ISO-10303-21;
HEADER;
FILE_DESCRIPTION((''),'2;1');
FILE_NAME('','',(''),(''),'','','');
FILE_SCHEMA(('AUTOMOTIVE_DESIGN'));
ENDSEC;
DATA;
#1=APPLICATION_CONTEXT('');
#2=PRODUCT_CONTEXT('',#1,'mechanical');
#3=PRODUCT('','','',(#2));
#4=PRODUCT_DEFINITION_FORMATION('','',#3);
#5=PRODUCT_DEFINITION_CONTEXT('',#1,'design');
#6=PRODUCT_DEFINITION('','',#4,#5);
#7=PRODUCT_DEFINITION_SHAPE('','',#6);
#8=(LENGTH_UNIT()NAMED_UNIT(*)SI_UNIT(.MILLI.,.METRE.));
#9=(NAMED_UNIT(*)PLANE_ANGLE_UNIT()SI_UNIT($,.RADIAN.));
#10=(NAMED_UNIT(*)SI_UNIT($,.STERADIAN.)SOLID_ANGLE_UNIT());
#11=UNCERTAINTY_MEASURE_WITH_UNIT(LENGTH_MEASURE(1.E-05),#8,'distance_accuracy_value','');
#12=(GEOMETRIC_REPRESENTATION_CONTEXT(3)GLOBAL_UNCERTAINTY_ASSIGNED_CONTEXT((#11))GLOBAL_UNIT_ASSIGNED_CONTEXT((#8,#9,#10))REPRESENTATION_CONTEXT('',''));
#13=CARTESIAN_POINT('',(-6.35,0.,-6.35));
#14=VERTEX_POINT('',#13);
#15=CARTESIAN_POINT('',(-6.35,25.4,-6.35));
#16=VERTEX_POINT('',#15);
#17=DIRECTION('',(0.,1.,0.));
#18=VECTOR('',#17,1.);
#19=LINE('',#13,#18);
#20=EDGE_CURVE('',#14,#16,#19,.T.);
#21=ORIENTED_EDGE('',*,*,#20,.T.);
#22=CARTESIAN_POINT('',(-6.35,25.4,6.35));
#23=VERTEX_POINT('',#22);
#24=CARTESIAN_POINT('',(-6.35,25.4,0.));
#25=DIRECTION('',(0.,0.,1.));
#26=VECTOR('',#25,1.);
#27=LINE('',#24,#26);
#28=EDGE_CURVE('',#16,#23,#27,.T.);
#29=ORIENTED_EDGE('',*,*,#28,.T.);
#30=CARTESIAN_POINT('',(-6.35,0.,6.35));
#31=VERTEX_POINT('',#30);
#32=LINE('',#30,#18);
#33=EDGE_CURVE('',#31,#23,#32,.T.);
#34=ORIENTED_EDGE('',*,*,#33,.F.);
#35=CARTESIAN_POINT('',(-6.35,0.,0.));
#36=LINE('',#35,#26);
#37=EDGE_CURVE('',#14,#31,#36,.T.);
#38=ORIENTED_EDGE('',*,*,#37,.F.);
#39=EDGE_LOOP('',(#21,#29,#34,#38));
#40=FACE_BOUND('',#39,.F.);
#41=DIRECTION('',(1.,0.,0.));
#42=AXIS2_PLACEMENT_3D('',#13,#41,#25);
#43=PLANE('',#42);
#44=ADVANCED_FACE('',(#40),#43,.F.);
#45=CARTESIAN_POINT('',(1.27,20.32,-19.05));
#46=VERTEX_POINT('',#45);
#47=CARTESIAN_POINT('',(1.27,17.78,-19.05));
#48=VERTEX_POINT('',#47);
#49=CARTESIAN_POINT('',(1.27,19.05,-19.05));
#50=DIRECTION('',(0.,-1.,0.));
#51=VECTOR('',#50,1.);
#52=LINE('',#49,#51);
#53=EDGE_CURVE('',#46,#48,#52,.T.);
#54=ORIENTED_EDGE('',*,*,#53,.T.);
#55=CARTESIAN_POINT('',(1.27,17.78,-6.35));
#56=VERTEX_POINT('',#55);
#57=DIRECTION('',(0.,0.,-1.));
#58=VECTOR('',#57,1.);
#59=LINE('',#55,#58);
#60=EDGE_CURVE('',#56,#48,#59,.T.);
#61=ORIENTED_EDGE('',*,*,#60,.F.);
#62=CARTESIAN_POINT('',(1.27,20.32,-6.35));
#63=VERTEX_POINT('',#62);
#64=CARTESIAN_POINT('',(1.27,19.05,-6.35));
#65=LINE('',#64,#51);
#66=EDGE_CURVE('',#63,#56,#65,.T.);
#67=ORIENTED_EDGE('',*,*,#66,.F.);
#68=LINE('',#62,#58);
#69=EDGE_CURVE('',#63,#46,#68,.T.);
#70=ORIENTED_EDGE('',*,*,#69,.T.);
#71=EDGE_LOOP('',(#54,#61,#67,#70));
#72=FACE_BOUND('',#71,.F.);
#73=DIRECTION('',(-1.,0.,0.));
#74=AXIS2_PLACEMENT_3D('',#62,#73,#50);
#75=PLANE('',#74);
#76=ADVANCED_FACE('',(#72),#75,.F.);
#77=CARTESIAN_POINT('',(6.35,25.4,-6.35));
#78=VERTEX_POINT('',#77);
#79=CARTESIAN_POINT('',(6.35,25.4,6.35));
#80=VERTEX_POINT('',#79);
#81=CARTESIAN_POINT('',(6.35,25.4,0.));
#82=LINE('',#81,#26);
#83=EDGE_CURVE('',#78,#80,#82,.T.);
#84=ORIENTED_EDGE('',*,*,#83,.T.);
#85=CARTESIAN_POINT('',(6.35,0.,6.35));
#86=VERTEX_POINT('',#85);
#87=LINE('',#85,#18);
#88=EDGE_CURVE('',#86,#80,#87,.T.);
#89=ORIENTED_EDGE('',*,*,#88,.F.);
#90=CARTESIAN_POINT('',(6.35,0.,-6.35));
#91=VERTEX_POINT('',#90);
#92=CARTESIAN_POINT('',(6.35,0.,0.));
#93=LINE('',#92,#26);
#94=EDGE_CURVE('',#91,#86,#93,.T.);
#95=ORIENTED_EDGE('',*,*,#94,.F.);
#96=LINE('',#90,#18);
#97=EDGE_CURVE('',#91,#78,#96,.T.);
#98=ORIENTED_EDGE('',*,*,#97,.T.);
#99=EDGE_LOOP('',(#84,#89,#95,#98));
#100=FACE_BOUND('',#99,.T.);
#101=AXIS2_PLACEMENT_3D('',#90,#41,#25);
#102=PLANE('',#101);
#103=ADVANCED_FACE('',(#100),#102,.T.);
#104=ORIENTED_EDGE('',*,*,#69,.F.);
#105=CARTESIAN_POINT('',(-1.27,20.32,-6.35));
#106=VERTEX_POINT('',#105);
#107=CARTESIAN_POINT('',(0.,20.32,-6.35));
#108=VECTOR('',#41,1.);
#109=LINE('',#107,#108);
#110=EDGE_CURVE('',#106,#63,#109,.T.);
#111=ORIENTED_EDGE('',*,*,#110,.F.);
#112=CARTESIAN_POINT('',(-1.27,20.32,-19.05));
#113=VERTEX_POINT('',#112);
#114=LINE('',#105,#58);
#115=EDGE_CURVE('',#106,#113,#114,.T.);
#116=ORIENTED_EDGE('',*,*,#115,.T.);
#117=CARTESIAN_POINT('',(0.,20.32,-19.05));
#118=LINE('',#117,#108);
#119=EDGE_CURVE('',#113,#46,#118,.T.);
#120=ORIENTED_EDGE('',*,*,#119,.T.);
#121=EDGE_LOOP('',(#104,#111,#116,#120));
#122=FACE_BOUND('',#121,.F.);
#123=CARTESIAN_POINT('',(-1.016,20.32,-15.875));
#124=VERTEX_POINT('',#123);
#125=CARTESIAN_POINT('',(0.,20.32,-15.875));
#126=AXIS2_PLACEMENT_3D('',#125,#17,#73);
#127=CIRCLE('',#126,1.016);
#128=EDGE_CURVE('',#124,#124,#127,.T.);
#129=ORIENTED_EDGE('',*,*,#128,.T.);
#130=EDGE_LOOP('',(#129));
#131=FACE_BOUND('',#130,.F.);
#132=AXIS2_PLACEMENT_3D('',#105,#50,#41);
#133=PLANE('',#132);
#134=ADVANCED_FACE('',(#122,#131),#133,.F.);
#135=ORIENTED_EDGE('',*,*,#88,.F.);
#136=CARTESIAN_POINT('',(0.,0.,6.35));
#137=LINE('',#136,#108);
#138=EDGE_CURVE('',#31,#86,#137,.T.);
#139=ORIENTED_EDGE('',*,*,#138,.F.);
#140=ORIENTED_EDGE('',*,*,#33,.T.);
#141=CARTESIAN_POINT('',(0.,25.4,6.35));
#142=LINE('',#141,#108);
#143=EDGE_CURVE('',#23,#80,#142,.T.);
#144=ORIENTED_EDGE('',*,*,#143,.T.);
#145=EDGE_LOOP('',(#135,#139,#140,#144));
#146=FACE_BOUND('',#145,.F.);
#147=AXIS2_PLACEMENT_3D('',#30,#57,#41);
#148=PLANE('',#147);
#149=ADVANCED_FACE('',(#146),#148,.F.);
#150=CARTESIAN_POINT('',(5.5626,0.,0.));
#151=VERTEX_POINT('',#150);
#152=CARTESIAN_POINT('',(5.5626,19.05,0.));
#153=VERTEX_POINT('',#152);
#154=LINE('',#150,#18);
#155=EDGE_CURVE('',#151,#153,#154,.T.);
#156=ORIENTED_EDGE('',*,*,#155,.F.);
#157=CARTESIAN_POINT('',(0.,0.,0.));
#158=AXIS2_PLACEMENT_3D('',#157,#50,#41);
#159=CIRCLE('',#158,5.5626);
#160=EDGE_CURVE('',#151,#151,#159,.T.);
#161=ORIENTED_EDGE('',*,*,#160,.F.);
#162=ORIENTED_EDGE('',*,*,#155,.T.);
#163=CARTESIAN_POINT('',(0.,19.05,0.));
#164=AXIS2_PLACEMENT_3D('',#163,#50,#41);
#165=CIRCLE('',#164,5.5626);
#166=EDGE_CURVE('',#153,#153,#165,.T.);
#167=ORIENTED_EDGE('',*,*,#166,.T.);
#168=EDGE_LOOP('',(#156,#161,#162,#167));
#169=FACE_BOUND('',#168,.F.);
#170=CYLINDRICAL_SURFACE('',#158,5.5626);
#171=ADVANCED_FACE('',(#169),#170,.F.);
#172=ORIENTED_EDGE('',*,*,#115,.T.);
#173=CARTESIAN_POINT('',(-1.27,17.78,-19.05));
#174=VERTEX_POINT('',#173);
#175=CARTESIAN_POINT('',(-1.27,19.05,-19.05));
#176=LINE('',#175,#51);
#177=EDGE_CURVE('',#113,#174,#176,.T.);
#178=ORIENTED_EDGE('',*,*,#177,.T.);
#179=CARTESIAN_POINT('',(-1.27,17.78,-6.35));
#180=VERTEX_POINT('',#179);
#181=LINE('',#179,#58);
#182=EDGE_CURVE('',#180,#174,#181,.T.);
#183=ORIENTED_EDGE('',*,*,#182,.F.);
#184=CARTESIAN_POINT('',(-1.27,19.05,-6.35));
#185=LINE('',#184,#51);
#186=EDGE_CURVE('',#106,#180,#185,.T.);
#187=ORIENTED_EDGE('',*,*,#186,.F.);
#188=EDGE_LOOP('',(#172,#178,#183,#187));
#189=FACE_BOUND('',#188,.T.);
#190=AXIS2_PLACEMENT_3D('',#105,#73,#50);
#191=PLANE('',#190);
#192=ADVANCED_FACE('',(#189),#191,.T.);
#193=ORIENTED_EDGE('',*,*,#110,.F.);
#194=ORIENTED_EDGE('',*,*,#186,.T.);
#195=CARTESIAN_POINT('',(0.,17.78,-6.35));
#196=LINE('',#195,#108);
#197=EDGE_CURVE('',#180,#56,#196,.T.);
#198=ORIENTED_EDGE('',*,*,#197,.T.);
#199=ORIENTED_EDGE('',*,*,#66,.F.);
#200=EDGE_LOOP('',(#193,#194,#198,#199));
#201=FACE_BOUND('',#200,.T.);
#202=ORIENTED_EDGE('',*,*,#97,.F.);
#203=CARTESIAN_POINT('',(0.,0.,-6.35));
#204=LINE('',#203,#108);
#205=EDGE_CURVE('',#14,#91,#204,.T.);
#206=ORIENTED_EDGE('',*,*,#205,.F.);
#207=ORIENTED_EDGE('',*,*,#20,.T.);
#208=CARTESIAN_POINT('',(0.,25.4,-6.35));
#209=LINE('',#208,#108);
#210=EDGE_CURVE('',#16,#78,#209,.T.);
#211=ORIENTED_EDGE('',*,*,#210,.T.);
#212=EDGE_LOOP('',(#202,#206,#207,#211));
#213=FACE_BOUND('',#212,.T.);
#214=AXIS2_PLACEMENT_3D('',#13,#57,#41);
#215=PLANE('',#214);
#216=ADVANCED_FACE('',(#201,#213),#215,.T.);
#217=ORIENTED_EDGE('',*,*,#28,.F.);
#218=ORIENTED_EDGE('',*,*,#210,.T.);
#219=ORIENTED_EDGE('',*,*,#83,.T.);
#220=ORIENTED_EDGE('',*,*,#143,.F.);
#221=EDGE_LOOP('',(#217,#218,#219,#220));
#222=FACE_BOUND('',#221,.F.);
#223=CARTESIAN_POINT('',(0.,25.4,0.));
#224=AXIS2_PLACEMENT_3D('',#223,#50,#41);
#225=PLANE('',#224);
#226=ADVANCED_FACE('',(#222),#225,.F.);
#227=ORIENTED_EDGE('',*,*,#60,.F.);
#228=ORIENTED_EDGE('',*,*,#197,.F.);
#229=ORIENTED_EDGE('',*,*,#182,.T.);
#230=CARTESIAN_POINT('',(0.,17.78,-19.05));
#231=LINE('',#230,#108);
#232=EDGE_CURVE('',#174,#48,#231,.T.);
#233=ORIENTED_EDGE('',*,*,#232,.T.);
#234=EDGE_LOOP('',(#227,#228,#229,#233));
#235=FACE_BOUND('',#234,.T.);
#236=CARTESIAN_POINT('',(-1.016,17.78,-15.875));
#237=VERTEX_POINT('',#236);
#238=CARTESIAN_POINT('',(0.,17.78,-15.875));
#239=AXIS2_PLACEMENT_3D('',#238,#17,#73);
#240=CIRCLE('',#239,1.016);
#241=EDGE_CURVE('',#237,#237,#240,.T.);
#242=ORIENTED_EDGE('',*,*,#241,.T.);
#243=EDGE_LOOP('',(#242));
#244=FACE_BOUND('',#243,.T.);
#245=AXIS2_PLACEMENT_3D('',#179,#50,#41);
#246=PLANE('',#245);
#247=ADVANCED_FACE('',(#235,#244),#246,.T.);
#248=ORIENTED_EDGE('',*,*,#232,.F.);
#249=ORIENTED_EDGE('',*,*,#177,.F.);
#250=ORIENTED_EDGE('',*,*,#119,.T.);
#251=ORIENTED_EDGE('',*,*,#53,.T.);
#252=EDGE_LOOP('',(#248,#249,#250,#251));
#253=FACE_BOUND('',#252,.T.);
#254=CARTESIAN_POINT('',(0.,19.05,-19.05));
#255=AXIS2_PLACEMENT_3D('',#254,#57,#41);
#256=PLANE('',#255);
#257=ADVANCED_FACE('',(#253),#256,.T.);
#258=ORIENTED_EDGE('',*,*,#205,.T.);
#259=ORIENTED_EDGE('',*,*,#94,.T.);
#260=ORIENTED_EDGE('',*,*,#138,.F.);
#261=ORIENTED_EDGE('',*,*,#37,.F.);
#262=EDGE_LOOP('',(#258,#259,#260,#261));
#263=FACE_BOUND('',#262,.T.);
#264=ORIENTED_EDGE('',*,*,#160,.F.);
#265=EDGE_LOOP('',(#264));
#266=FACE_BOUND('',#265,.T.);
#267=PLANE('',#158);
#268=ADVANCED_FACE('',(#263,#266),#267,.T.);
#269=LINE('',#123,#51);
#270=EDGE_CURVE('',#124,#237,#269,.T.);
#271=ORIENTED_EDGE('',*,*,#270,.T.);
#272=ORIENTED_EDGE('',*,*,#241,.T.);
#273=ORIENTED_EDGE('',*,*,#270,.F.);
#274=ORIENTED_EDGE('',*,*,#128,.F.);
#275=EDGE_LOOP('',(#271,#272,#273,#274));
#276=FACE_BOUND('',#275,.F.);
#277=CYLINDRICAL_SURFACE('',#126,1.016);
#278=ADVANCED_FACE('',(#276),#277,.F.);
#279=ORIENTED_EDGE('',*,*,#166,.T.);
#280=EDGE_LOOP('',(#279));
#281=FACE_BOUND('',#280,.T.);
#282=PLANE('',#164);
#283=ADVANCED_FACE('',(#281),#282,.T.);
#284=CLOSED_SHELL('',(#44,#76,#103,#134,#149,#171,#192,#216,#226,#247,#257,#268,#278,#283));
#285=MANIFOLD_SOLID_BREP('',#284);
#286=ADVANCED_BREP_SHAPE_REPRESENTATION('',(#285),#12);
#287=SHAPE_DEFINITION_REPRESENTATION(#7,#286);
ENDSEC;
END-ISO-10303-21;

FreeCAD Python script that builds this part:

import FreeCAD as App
import Part
import Sketcher

V = App.Vector
Q = App.Units.Quantity


def add_polygon(sketch, points):
    """Adds a closed chain of lines whose ends are joined by coincident constraints."""
    first, n = sketch.GeometryCount, len(points)
    for a, b in zip(points, points[1:] + points[:1]):
        sketch.addGeometry(Part.LineSegment(App.Vector(*a, 0), App.Vector(*b, 0)), False)
    for i in range(n):
        sketch.addConstraint(Sketcher.Constraint("Coincident", first + i, 2, first + (i + 1) % n, 1))

doc = App.newDocument("Part")
params = doc.addObject("Spreadsheet::Sheet", "Params")
for row, (alias, value) in enumerate([
    ("sketch1_width", "0.5 in"),
    ("pad1_length", "1 in"),
    ("sketch2_diameter", "0.438 in"),
    ("pocket1_length", "0.75 in"),
    ("sketch3_width", "0.1 in"),
    ("pad2_length", "0.5 in"),
    ("sketch4_diameter", "0.08 in"),
    ("pocket2_length", "1 in"),
], start=1):
    params.set(f"A{row}", alias)
    params.set(f"B{row}", "=" + value)
    params.setAlias(f"B{row}", alias)

body = doc.addObject("PartDesign::Body", "Body")

sketch1 = body.newObject("Sketcher::SketchObject", "Sketch")
sketch1.AttachmentSupport = (doc.getObject("XZ_Plane"), [""])
sketch1.MapMode = "FlatFace"
add_polygon(sketch1, [(-6, 6), (-6, -6), (6, -6), (6, 6)])
sketch1.addConstraint(Sketcher.Constraint("Vertical", 0))
sketch1.addConstraint(Sketcher.Constraint("Horizontal", 1))
sketch1.addConstraint(Sketcher.Constraint("Vertical", 2))
sketch1.addConstraint(Sketcher.Constraint("Horizontal", 3))
sketch1.addConstraint(Sketcher.Constraint("Symmetric", 0, 2, 2, 2, -1, 1))
sketch1.addConstraint(Sketcher.Constraint("Equal", 3, 0))
sketch1.addConstraint(Sketcher.Constraint("DistanceX", 1, 1, 1, 2, Q("0.5 in")))
sketch1.setExpression("Constraints[10]", "Params.sketch1_width")
pad1 = body.newObject("PartDesign::Pad", "Pad")
pad1.Profile = sketch1
pad1.setExpression("Length", "Params.pad1_length")
pad1.Reversed = True

sketch2 = body.newObject("Sketcher::SketchObject", "Sketch001")
sketch2.AttachmentSupport = (doc.getObject("XZ_Plane"), [""])
sketch2.MapMode = "FlatFace"
sketch2.addGeometry(Part.Circle(V(0, 0, 0), V(0, 0, 1), 6), False)
sketch2.addConstraint(Sketcher.Constraint("Coincident", 0, 3, -1, 1))
sketch2.addConstraint(Sketcher.Constraint("Diameter", 0, Q("0.438 in")))
sketch2.setExpression("Constraints[1]", "Params.sketch2_diameter")
pocket1 = body.newObject("PartDesign::Pocket", "Pocket")
pocket1.Profile = sketch2
pocket1.setExpression("Length", "Params.pocket1_length")

sketch3 = body.newObject("Sketcher::SketchObject", "Sketch002")
sketch3.AttachmentSupport = (doc.getObject("XY_Plane"), [""])
sketch3.MapMode = "FlatFace"
sketch3.AttachmentOffset = App.Placement(V(0, 0, -0.25 * 25.4), App.Rotation())
add_polygon(sketch3, [(-1.3, 17.8), (-1.3, 20.3), (1.3, 20.3), (1.3, 17.8)])
sketch3.addConstraint(Sketcher.Constraint("Vertical", 0))
sketch3.addConstraint(Sketcher.Constraint("Horizontal", 1))
sketch3.addConstraint(Sketcher.Constraint("Vertical", 2))
sketch3.addConstraint(Sketcher.Constraint("Horizontal", 3))
sketch3.addConstraint(Sketcher.Constraint("Equal", 3, 0))
sketch3.addConstraint(Sketcher.Constraint("DistanceX", 1, 1, 1, 2, Q("0.1 in")))
sketch3.addConstraint(Sketcher.Constraint("DistanceY", -1, 1, 0, 2, Q("0.8 in")))
sketch3.addConstraint(Sketcher.Constraint("DistanceX", 0, 2, -1, 1, Q("0.05 in")))
sketch3.setExpression("Constraints[9]", "Params.sketch3_width")
pad2 = body.newObject("PartDesign::Pad", "Pad001")
pad2.Profile = sketch3
pad2.setExpression("Length", "Params.pad2_length")
pad2.Reversed = True

sketch4 = body.newObject("Sketcher::SketchObject", "Sketch003")
sketch4.AttachmentSupport = (doc.getObject("XZ_Plane"), [""])
sketch4.MapMode = "FlatFace"
sketch4.AttachmentOffset = App.Placement(V(0, 0, -0.8 * 25.4), App.Rotation())
sketch4.addGeometry(Part.Circle(V(0, -15.9, 0), V(0, 0, 1), 1), False)
sketch4.addConstraint(Sketcher.Constraint("PointOnObject", 0, 3, -2))
sketch4.addConstraint(Sketcher.Constraint("Diameter", 0, Q("0.08 in")))
sketch4.addConstraint(Sketcher.Constraint("DistanceY", 0, 3, -1, 1, Q("0.625 in")))
sketch4.setExpression("Constraints[1]", "Params.sketch4_diameter")
pocket2 = body.newObject("PartDesign::Pocket", "Pocket001")
pocket2.Profile = sketch4
pocket2.setExpression("Length", "Params.pocket2_length")
pocket2.Reversed = True

doc.recompute()
